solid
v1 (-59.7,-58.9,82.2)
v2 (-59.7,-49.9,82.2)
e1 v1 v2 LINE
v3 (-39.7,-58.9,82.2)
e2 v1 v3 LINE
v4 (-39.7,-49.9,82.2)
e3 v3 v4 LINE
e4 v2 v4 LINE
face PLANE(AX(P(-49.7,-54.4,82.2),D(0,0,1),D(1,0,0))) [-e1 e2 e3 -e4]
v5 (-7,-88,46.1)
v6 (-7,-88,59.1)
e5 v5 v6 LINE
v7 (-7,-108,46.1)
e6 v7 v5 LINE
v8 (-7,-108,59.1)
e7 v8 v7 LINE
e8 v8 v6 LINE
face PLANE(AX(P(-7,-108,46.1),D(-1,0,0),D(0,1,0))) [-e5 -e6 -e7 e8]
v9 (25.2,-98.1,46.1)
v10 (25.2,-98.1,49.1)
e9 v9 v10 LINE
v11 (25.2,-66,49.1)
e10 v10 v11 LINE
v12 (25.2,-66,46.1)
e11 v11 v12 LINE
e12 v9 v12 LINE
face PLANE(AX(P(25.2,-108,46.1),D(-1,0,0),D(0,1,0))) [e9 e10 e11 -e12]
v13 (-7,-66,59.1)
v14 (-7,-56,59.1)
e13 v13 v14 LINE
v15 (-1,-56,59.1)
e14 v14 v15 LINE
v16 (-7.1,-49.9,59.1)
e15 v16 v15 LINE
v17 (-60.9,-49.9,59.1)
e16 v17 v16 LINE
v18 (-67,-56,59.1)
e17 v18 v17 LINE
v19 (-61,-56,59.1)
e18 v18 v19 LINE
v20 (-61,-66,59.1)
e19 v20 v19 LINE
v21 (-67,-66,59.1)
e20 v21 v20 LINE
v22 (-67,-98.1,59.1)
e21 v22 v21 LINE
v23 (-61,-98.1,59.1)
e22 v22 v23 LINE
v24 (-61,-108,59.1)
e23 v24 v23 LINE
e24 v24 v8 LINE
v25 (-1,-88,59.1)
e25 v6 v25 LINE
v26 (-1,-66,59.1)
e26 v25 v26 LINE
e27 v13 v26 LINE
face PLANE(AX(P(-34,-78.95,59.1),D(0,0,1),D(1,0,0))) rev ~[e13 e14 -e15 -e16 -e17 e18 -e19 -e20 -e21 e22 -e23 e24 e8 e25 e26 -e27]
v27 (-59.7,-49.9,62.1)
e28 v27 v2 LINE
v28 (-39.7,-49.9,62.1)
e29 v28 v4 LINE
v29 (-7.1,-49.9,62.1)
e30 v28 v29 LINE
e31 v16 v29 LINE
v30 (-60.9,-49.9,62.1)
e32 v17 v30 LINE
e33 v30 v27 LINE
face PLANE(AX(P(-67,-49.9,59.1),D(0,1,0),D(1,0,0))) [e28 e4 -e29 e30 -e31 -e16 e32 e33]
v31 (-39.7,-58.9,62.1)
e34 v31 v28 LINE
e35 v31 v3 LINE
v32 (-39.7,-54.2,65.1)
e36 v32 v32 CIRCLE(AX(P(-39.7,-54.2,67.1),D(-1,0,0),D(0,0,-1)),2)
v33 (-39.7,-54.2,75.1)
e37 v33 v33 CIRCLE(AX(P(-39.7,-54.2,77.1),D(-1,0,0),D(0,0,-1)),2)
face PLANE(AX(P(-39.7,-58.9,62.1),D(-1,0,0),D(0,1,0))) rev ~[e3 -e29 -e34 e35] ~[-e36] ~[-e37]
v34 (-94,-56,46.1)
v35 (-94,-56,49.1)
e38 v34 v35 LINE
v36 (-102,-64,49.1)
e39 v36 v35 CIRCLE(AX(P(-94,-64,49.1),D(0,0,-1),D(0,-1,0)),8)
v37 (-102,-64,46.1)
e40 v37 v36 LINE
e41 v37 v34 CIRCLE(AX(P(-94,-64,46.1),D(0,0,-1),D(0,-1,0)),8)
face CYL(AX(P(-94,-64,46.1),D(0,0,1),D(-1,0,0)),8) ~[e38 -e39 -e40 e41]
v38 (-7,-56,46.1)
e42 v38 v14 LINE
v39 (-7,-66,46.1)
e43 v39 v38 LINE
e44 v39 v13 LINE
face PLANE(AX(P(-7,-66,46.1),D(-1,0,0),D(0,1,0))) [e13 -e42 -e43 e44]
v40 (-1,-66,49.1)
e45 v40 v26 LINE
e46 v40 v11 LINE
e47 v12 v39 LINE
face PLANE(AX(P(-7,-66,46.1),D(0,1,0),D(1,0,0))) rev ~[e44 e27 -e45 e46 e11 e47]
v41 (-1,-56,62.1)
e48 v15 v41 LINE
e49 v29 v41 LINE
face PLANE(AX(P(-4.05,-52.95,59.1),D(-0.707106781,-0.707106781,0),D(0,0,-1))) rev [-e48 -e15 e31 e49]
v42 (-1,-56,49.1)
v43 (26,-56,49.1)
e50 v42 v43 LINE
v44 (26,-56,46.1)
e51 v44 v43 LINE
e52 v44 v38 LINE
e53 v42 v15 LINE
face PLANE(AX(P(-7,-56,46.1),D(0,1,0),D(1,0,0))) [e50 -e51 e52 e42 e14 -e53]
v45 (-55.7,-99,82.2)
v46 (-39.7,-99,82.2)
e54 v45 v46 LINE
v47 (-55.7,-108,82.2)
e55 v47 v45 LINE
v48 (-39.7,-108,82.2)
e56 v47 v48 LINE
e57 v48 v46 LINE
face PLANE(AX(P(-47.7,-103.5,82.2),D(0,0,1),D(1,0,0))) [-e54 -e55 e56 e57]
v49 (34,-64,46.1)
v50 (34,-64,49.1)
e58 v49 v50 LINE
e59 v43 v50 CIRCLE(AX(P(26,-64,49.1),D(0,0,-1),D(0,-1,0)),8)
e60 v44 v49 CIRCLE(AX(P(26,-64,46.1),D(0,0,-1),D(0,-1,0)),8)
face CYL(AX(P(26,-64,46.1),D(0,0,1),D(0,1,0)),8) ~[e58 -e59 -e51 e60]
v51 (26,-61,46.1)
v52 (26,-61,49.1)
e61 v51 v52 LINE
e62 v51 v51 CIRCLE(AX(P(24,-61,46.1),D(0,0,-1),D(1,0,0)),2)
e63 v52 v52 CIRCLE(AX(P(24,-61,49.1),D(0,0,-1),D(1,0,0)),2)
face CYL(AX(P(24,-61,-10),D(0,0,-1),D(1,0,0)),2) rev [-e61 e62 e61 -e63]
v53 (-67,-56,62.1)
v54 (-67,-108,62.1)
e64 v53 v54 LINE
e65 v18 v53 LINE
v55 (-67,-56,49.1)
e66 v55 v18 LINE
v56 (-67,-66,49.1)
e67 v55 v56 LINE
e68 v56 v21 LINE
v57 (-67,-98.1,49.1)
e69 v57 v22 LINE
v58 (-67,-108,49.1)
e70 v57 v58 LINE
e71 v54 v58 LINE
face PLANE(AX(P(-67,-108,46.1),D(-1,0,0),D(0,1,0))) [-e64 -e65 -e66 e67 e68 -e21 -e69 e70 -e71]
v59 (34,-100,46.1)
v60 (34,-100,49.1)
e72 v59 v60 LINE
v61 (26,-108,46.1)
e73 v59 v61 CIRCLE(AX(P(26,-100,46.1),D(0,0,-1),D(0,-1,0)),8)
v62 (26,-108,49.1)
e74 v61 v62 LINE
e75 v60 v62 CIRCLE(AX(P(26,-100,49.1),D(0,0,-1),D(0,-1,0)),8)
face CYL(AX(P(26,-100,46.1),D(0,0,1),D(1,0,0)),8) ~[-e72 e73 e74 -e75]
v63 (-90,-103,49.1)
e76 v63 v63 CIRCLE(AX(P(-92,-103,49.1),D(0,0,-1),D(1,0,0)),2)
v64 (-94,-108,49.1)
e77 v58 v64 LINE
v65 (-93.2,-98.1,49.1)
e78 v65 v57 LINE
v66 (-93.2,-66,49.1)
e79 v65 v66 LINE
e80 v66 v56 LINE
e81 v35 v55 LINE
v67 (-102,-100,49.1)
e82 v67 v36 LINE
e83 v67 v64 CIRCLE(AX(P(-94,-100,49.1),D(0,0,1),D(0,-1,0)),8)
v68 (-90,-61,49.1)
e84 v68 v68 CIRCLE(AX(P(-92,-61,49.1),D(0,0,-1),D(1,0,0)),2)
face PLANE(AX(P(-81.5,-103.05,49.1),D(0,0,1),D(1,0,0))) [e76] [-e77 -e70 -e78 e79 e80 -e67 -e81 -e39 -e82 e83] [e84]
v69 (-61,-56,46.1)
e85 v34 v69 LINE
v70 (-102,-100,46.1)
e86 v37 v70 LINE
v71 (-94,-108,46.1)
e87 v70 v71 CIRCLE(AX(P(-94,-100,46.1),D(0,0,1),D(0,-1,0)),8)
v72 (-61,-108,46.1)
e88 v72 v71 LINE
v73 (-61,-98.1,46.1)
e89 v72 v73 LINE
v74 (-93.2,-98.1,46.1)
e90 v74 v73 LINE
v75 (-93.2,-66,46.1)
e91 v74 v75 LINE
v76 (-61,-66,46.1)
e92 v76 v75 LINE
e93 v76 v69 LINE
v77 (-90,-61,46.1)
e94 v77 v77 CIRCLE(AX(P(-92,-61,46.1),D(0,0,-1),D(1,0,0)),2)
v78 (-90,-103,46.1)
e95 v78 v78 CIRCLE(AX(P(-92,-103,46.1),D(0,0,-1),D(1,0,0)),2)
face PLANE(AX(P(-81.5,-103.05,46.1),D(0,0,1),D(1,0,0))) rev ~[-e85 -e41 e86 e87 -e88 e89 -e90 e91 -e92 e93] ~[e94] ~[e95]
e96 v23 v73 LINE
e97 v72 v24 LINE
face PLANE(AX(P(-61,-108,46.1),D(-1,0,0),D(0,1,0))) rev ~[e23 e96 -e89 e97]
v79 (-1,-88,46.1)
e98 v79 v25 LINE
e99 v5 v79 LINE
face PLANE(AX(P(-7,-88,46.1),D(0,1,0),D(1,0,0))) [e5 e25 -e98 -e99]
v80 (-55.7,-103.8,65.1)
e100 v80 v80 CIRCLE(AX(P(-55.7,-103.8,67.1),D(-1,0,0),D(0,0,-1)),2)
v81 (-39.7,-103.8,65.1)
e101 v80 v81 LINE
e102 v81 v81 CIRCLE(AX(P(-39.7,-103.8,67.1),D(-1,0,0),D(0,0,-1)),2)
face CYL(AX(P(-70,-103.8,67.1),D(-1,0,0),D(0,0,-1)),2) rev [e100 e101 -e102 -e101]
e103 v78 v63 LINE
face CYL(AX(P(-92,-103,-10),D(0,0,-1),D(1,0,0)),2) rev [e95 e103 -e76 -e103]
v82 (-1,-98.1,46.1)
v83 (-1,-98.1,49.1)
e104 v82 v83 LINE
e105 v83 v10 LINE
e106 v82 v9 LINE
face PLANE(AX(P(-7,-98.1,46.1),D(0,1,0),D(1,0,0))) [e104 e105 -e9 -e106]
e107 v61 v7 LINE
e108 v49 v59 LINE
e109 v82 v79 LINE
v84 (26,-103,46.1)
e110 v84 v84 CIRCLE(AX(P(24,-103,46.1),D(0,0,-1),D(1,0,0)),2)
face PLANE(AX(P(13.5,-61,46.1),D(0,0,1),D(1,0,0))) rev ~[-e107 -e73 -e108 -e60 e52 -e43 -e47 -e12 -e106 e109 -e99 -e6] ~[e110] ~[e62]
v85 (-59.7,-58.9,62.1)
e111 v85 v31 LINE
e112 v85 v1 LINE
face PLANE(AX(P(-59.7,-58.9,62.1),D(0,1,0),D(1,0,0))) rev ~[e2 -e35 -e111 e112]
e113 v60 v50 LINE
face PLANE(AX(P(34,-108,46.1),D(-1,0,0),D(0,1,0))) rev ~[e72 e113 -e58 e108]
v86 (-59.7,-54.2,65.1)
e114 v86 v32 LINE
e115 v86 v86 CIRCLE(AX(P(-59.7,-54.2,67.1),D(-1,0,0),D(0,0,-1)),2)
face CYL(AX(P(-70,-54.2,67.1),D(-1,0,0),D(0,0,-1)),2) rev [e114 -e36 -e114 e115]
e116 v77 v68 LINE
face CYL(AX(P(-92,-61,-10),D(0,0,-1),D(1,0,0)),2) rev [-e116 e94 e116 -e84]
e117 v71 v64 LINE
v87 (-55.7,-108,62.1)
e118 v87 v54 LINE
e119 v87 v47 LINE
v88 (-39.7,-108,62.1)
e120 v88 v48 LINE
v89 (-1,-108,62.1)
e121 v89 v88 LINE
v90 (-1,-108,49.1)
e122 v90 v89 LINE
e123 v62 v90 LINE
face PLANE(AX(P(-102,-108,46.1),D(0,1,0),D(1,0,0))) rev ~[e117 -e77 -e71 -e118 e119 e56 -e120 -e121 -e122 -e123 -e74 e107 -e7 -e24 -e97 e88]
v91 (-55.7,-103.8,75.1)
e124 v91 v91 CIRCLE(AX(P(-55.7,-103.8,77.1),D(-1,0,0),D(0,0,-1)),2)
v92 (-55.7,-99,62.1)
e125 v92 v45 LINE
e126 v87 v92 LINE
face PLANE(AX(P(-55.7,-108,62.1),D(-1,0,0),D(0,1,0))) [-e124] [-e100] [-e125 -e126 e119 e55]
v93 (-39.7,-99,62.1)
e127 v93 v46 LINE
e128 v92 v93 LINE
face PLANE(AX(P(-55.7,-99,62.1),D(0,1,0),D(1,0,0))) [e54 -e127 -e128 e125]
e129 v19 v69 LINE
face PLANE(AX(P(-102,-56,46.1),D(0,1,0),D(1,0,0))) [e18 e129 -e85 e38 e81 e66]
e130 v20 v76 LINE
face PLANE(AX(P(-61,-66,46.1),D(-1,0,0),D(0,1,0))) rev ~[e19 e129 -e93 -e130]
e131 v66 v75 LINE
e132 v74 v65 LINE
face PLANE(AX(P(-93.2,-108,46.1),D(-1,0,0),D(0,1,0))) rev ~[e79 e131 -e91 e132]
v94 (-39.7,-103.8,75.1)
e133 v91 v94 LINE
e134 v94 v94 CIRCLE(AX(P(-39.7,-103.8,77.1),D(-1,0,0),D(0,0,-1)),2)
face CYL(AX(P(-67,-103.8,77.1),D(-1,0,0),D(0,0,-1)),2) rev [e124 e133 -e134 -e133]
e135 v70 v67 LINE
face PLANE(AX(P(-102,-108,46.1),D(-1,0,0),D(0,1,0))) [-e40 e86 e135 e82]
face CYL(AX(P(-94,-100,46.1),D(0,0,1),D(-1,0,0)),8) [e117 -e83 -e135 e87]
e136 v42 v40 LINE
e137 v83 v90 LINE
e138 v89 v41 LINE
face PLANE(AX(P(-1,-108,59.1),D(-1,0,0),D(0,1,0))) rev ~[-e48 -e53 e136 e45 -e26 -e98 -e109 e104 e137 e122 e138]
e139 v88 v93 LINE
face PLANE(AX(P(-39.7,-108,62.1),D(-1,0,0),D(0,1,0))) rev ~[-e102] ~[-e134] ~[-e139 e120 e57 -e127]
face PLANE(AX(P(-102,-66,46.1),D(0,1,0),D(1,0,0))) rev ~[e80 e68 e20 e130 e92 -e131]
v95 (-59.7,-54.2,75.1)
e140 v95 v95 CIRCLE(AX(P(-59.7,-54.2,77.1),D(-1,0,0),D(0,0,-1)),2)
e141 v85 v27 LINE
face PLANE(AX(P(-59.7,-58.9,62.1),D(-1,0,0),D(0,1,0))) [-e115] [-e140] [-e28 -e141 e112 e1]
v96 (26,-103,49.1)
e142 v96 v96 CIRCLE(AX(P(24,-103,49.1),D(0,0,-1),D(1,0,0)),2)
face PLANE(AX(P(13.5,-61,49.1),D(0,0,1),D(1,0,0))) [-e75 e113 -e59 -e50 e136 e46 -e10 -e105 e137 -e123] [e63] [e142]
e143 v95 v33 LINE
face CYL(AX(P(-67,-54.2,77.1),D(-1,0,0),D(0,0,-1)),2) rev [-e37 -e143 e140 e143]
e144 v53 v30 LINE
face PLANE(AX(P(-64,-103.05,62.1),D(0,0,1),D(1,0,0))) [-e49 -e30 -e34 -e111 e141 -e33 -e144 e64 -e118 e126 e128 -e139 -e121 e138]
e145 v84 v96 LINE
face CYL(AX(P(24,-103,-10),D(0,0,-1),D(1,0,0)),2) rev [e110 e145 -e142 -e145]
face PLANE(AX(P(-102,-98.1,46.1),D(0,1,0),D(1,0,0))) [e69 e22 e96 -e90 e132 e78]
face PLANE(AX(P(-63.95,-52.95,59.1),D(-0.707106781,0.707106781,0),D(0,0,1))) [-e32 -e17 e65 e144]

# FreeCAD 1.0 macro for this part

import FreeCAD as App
import Part
import Sketcher
from FreeCAD import Vector
Q = App.Units.Quantity


def edges_at(feature, points):
    """Names of the edges that pass closest to the given points."""
    edges = feature.Shape.Edges
    near = lambda p: min(range(len(edges)), key=lambda i: edges[i].distToShape(Part.Vertex(*p))[0])
    return sorted({f"Edge{near(p) + 1}" for p in points})


def add_polygon(sketch, points):
    """Adds a closed chain of lines whose ends are joined by coincident constraints."""
    first, n = sketch.GeometryCount, len(points)
    for a, b in zip(points, points[1:] + points[:1]):
        sketch.addGeometry(Part.LineSegment(App.Vector(*a, 0), App.Vector(*b, 0)), False)
    for i in range(n):
        sketch.addConstraint(Sketcher.Constraint("Coincident", first + i, 2, first + (i + 1) % n, 1))

doc = App.newDocument("Part")
body = doc.addObject("PartDesign::Body", "Body")

# Sketch on XY plane
sketch1 = doc.addObject("Sketcher::SketchObject", "Sketch")
body.addObject(sketch1)
sketch1.AttachmentSupport = (doc.XY_Plane, [""])
sketch1.MapMode = "FlatFace"
sketch1.AttachmentOffset = App.Placement(Vector(0, 0, -10), App.Rotation())
sketch1.addGeometry(Part.Circle(Vector(-90, -103, 0), Vector(0, 0, 1), 2), False)
sketch1.addConstraint(Sketcher.Constraint("Diameter", 0, Q("4 mm")))
sketch1.addConstraint(Sketcher.Constraint("DistanceX", 0, 3, -1, 1, Q("90 mm")))
sketch1.addConstraint(Sketcher.Constraint("DistanceY", 0, 3, -1, 1, Q("103 mm")))
pad1 = doc.addObject("PartDesign::Pad", "Pad")
body.addObject(pad1)
pad1.Profile = sketch1
pad1.Length = 70
body2 = doc.addObject("PartDesign::Body", "Body001")
body2.AllowCompound = True

# Sketch on XY plane
sketch2 = doc.addObject("Sketcher::SketchObject", "Sketch001")
body2.addObject(sketch2)
sketch2.AttachmentSupport = (doc.getObject("XY_Plane001"), [""])
sketch2.MapMode = "FlatFace"
sketch2.AttachmentOffset = App.Placement(Vector(0, 0, -10), App.Rotation())
sketch2.addGeometry(Part.Circle(Vector(-90, -61, 0), Vector(0, 0, 1), 2), False)
sketch2.addConstraint(Sketcher.Constraint("Diameter", 0, Q("4 mm")))
sketch2.addConstraint(Sketcher.Constraint("DistanceX", 0, 3, -1, 1, Q("90 mm")))
sketch2.addConstraint(Sketcher.Constraint("DistanceY", 0, 3, -1, 1, Q("61 mm")))
pad2 = doc.addObject("PartDesign::Pad", "Pad001")
body2.addObject(pad2)
pad2.Profile = sketch2
pad2.Length = 70
doc.recompute()

boolean = doc.addObject("PartDesign::Boolean", "Boolean")
body2.addObject(boolean)
boolean.Type = "Fuse"
boolean.addObjects([body])
body3 = doc.addObject("PartDesign::Body", "Body002")
body3.AllowCompound = True
doc.recompute()

body2.Placement = App.Placement(Vector(114, 0, 0), App.Rotation(Vector(0, 0, 1), 0))
boolean2 = doc.addObject("PartDesign::Boolean", "Boolean001")
body3.addObject(boolean2)
boolean2.Type = "Fuse"
boolean2.addObjects([body2])
body4 = doc.addObject("PartDesign::Body", "Body003")

# Sketch on XY plane
sketch3 = doc.addObject("Sketcher::SketchObject", "Sketch002")
body4.addObject(sketch3)
sketch3.AttachmentSupport = (doc.getObject("XY_Plane003"), [""])
sketch3.MapMode = "FlatFace"
sketch3.AttachmentOffset = App.Placement(Vector(0, 0, 46.1), App.Rotation())
add_polygon(sketch3, [(25, -56), (25, -108), (34, -108), (34, -56)])  # lines 0-3
sketch3.addConstraint(Sketcher.Constraint("Vertical", 0))
sketch3.addConstraint(Sketcher.Constraint("Horizontal", 1))
sketch3.addConstraint(Sketcher.Constraint("Vertical", 2))
sketch3.addConstraint(Sketcher.Constraint("Horizontal", 3))
sketch3.addConstraint(Sketcher.Constraint("DistanceY", 0, 2, 0, 1, Q("52 mm")))
sketch3.addConstraint(Sketcher.Constraint("DistanceX", 1, 1, 1, 2, Q("8.8 mm")))
sketch3.addConstraint(Sketcher.Constraint("DistanceY", 0, 2, -1, 1, Q("108 mm")))
sketch3.addConstraint(Sketcher.Constraint("DistanceX", -1, 1, 1, 2, Q("34 mm")))
pad3 = doc.addObject("PartDesign::Pad", "Pad002")
body4.addObject(pad3)
pad3.Profile = sketch3
pad3.Length = 3
body5 = doc.addObject("PartDesign::Body", "Body004")

# Sketch on XY plane
sketch4 = doc.addObject("Sketcher::SketchObject", "Sketch003")
body5.addObject(sketch4)
sketch4.AttachmentSupport = (doc.getObject("XY_Plane004"), [""])
sketch4.MapMode = "FlatFace"
sketch4.AttachmentOffset = App.Placement(Vector(0, 0, 46.1), App.Rotation())
add_polygon(sketch4, [(-7, -56), (-7, -66), (34, -66), (34, -56)])  # lines 0-3
sketch4.addConstraint(Sketcher.Constraint("Vertical", 0))
sketch4.addConstraint(Sketcher.Constraint("Horizontal", 1))
sketch4.addConstraint(Sketcher.Constraint("Vertical", 2))
sketch4.addConstraint(Sketcher.Constraint("Horizontal", 3))
sketch4.addConstraint(Sketcher.Constraint("DistanceX", 1, 1, 1, 2, Q("41 mm")))
sketch4.addConstraint(Sketcher.Constraint("DistanceY", 0, 2, 0, 1, Q("10 mm")))
sketch4.addConstraint(Sketcher.Constraint("DistanceX", 0, 2, -1, 1, Q("7 mm")))
sketch4.addConstraint(Sketcher.Constraint("DistanceY", 0, 2, -1, 1, Q("66 mm")))
pad4 = doc.addObject("PartDesign::Pad", "Pad003")
body5.addObject(pad4)
pad4.Profile = sketch4
pad4.Length = 3
body6 = doc.addObject("PartDesign::Body", "Body005")

# Sketch on XY plane
sketch5 = doc.addObject("Sketcher::SketchObject", "Sketch004")
body6.addObject(sketch5)
sketch5.AttachmentSupport = (doc.getObject("XY_Plane005"), [""])
sketch5.MapMode = "FlatFace"
sketch5.AttachmentOffset = App.Placement(Vector(0, 0, 46.1), App.Rotation())
add_polygon(sketch5, [(-7, -98), (-7, -108), (34, -108), (34, -98)])  # lines 0-3
sketch5.addConstraint(Sketcher.Constraint("Vertical", 0))
sketch5.addConstraint(Sketcher.Constraint("Horizontal", 1))
sketch5.addConstraint(Sketcher.Constraint("Vertical", 2))
sketch5.addConstraint(Sketcher.Constraint("Horizontal", 3))
sketch5.addConstraint(Sketcher.Constraint("DistanceX", 1, 1, 1, 2, Q("41 mm")))
sketch5.addConstraint(Sketcher.Constraint("DistanceY", 0, 2, 0, 1, Q("9.9 mm")))
sketch5.addConstraint(Sketcher.Constraint("DistanceX", 0, 2, -1, 1, Q("7 mm")))
sketch5.addConstraint(Sketcher.Constraint("DistanceY", 0, 2, -1, 1, Q("108 mm")))
pad5 = doc.addObject("PartDesign::Pad", "Pad004")
body6.addObject(pad5)
pad5.Profile = sketch5
pad5.Length = 3
doc.recompute()

boolean3 = doc.addObject("PartDesign::Boolean", "Boolean002")
body6.addObject(boolean3)
boolean3.Type = "Fuse"
boolean3.addObjects([body4])
doc.recompute()

boolean4 = doc.addObject("PartDesign::Boolean", "Boolean003")
body6.addObject(boolean4)
boolean4.Type = "Fuse"
boolean4.addObjects([body5])
doc.recompute()

boolean5 = doc.addObject("PartDesign::Boolean", "Boolean004")
body6.addObject(boolean5)
boolean5.Type = "Cut"
boolean5.addObjects([body3])
doc.recompute()

fillet = doc.addObject("PartDesign::Fillet", "Fillet")
body6.addObject(fillet)
fillet.Base = (boolean5, edges_at(boolean5, [(34, -108, 47.6), (34, -56, 47.6)]))
fillet.Radius = 8
body7 = doc.addObject("PartDesign::Body", "Body006")

# Sketch on XY plane
sketch6 = doc.addObject("Sketcher::SketchObject", "Sketch005")
body7.addObject(sketch6)
sketch6.AttachmentSupport = (doc.getObject("XY_Plane006"), [""])
sketch6.MapMode = "FlatFace"
sketch6.AttachmentOffset = App.Placement(Vector(0, 0, 46.1), App.Rotation())
add_polygon(sketch6, [(-7, -56), (-7, -66), (-1, -66), (-1, -56)])  # lines 0-3
sketch6.addConstraint(Sketcher.Constraint("Vertical", 0))
sketch6.addConstraint(Sketcher.Constraint("Horizontal", 1))
sketch6.addConstraint(Sketcher.Constraint("Vertical", 2))
sketch6.addConstraint(Sketcher.Constraint("Horizontal", 3))
sketch6.addConstraint(Sketcher.Constraint("DistanceX", 1, 1, 1, 2, Q("6 mm")))
sketch6.addConstraint(Sketcher.Constraint("DistanceY", 0, 2, 0, 1, Q("10 mm")))
sketch6.addConstraint(Sketcher.Constraint("DistanceX", 0, 2, -1, 1, Q("7 mm")))
sketch6.addConstraint(Sketcher.Constraint("DistanceY", 0, 2, -1, 1, Q("66 mm")))
pad6 = doc.addObject("PartDesign::Pad", "Pad005")
body7.addObject(pad6)
pad6.Profile = sketch6
pad6.Length = 16
body8 = doc.addObject("PartDesign::Body", "Body007")

# Sketch on XY plane
sketch7 = doc.addObject("Sketcher::SketchObject", "Sketch006")
body8.addObject(sketch7)
sketch7.AttachmentSupport = (doc.getObject("XY_Plane007"), [""])
sketch7.MapMode = "FlatFace"
sketch7.AttachmentOffset = App.Placement(Vector(0, 0, 46.1), App.Rotation())
add_polygon(sketch7, [(-67, -98), (-67, -108), (-61, -108), (-61, -98)])  # lines 0-3
sketch7.addConstraint(Sketcher.Constraint("Vertical", 0))
sketch7.addConstraint(Sketcher.Constraint("Horizontal", 1))
sketch7.addConstraint(Sketcher.Constraint("Vertical", 2))
sketch7.addConstraint(Sketcher.Constraint("Horizontal", 3))
sketch7.addConstraint(Sketcher.Constraint("DistanceX", 1, 1, 1, 2, Q("6 mm")))
sketch7.addConstraint(Sketcher.Constraint("DistanceY", 0, 2, 0, 1, Q("9.9 mm")))
sketch7.addConstraint(Sketcher.Constraint("DistanceX", 0, 2, -1, 1, Q("67 mm")))
sketch7.addConstraint(Sketcher.Constraint("DistanceY", 0, 2, -1, 1, Q("108 mm")))
pad7 = doc.addObject("PartDesign::Pad", "Pad006")
body8.addObject(pad7)
pad7.Profile = sketch7
pad7.Length = 16
body9 = doc.addObject("PartDesign::Body", "Body008")

# Sketch on XY plane
sketch8 = doc.addObject("Sketcher::SketchObject", "Sketch007")
body9.addObject(sketch8)
sketch8.AttachmentSupport = (doc.getObject("XY_Plane008"), [""])
sketch8.MapMode = "FlatFace"
sketch8.AttachmentOffset = App.Placement(Vector(0, 0, 46.1), App.Rotation())
add_polygon(sketch8, [(-67, -56), (-67, -66), (-61, -66), (-61, -56)])  # lines 0-3
sketch8.addConstraint(Sketcher.Constraint("Vertical", 0))
sketch8.addConstraint(Sketcher.Constraint("Horizontal", 1))
sketch8.addConstraint(Sketcher.Constraint("Vertical", 2))
sketch8.addConstraint(Sketcher.Constraint("Horizontal", 3))
sketch8.addConstraint(Sketcher.Constraint("DistanceX", 1, 1, 1, 2, Q("6 mm")))
sketch8.addConstraint(Sketcher.Constraint("DistanceY", 0, 2, 0, 1, Q("10 mm")))
sketch8.addConstraint(Sketcher.Constraint("DistanceX", 0, 2, -1, 1, Q("67 mm")))
sketch8.addConstraint(Sketcher.Constraint("DistanceY", 0, 2, -1, 1, Q("66 mm")))
pad8 = doc.addObject("PartDesign::Pad", "Pad007")
body9.addObject(pad8)
pad8.Profile = sketch8
pad8.Length = 16
body10 = doc.addObject("PartDesign::Body", "Body009")
body10.AllowCompound = True

# Sketch on XY plane
sketch9 = doc.addObject("Sketcher::SketchObject", "Sketch008")
body10.addObject(sketch9)
sketch9.AttachmentSupport = (doc.getObject("XY_Plane009"), [""])
sketch9.MapMode = "FlatFace"
sketch9.AttachmentOffset = App.Placement(Vector(0, 0, 46.1), App.Rotation())
add_polygon(sketch9, [(-7, -88), (-7, -108), (-1, -108), (-1, -88)])  # lines 0-3
sketch9.addConstraint(Sketcher.Constraint("Vertical", 0))
sketch9.addConstraint(Sketcher.Constraint("Horizontal", 1))
sketch9.addConstraint(Sketcher.Constraint("Vertical", 2))
sketch9.addConstraint(Sketcher.Constraint("Horizontal", 3))
sketch9.addConstraint(Sketcher.Constraint("DistanceX", 1, 1, 1, 2, Q("6 mm")))
sketch9.addConstraint(Sketcher.Constraint("DistanceY", 0, 2, 0, 1, Q("20 mm")))
sketch9.addConstraint(Sketcher.Constraint("DistanceX", 0, 2, -1, 1, Q("7 mm")))
sketch9.addConstraint(Sketcher.Constraint("DistanceY", 0, 2, -1, 1, Q("108 mm")))
pad9 = doc.addObject("PartDesign::Pad", "Pad008")
body10.addObject(pad9)
pad9.Profile = sketch9
pad9.Length = 16
doc.recompute()

boolean6 = doc.addObject("PartDesign::Boolean", "Boolean005")
body10.addObject(boolean6)
boolean6.Type = "Fuse"
boolean6.addObjects([body7])
doc.recompute()

boolean7 = doc.addObject("PartDesign::Boolean", "Boolean006")
body10.addObject(boolean7)
boolean7.Type = "Fuse"
boolean7.addObjects([body8])
doc.recompute()

boolean8 = doc.addObject("PartDesign::Boolean", "Boolean007")
body10.addObject(boolean8)
boolean8.Type = "Fuse"
boolean8.addObjects([body9])
body11 = doc.addObject("PartDesign::Body", "Body010")

# Sketch on YZ plane
sketch10 = doc.addObject("Sketcher::SketchObject", "Sketch009")
body11.addObject(sketch10)
sketch10.AttachmentSupport = (doc.getObject("YZ_Plane010"), [""])
sketch10.MapMode = "FlatFace"
sketch10.AttachmentOffset = App.Placement(Vector(0, 0, -74.6), App.Rotation())
sketch10.addGeometry(Part.Circle(Vector(-105.8, 63, 0), Vector(0, 0, 1), 2), False)
sketch10.addConstraint(Sketcher.Constraint("Diameter", 0, Q("4 mm")))
sketch10.addConstraint(Sketcher.Constraint("DistanceY", -1, 1, 0, 3, Q("63 mm")))
sketch10.addConstraint(Sketcher.Constraint("DistanceX", 0, 3, -1, 1, Q("105.8 mm")))
pad10 = doc.addObject("PartDesign::Pad", "Pad009")
body11.addObject(pad10)
pad10.Profile = sketch10
pad10.Length = 33
body12 = doc.addObject("PartDesign::Body", "Body011")
body12.AllowCompound = True

# Sketch on YZ plane
sketch11 = doc.addObject("Sketcher::SketchObject", "Sketch010")
body12.addObject(sketch11)
sketch11.AttachmentSupport = (doc.getObject("YZ_Plane011"), [""])
sketch11.MapMode = "FlatFace"
sketch11.AttachmentOffset = App.Placement(Vector(0, 0, -71.6), App.Rotation())
sketch11.addGeometry(Part.Circle(Vector(-105.8, 73, 0), Vector(0, 0, 1), 2), False)
sketch11.addConstraint(Sketcher.Constraint("Diameter", 0, Q("4 mm")))
sketch11.addConstraint(Sketcher.Constraint("DistanceY", -1, 1, 0, 3, Q("73 mm")))
sketch11.addConstraint(Sketcher.Constraint("DistanceX", 0, 3, -1, 1, Q("105.8 mm")))
pad11 = doc.addObject("PartDesign::Pad", "Pad010")
body12.addObject(pad11)
pad11.Profile = sketch11
pad11.Length = 30
doc.recompute()

boolean9 = doc.addObject("PartDesign::Boolean", "Boolean008")
body12.addObject(boolean9)
boolean9.Type = "Fuse"
boolean9.addObjects([body11])
body13 = doc.addObject("PartDesign::Body", "Body012")
body13.AllowCompound = True
doc.recompute()

body12.Placement = App.Placement(Vector(0, 2, 4), App.Rotation(Vector(0, 0, 1), 0))
boolean10 = doc.addObject("PartDesign::Boolean", "Boolean009")
body13.addObject(boolean10)
boolean10.Type = "Fuse"
boolean10.addObjects([body12])
body14 = doc.addObject("PartDesign::Body", "Body013")

# Sketch on YZ plane
sketch12 = doc.addObject("Sketcher::SketchObject", "Sketch011")
body14.addObject(sketch12)
sketch12.AttachmentSupport = (doc.getObject("YZ_Plane013"), [""])
sketch12.MapMode = "FlatFace"
sketch12.AttachmentOffset = App.Placement(Vector(0, 0, -74.6), App.Rotation())
sketch12.addGeometry(Part.Circle(Vector(-56.2, 63, 0), Vector(0, 0, 1), 2), False)
sketch12.addConstraint(Sketcher.Constraint("Diameter", 0, Q("4 mm")))
sketch12.addConstraint(Sketcher.Constraint("DistanceY", -1, 1, 0, 3, Q("63 mm")))
sketch12.addConstraint(Sketcher.Constraint("DistanceX", 0, 3, -1, 1, Q("56.2 mm")))
pad12 = doc.addObject("PartDesign::Pad", "Pad011")
body14.addObject(pad12)
pad12.Profile = sketch12
pad12.Length = 33
body15 = doc.addObject("PartDesign::Body", "Body014")
body15.AllowCompound = True

# Sketch on YZ plane
sketch13 = doc.addObject("Sketcher::SketchObject", "Sketch012")
body15.addObject(sketch13)
sketch13.AttachmentSupport = (doc.getObject("YZ_Plane014"), [""])
sketch13.MapMode = "FlatFace"
sketch13.AttachmentOffset = App.Placement(Vector(0, 0, -71.6), App.Rotation())
sketch13.addGeometry(Part.Circle(Vector(-56.2, 73, 0), Vector(0, 0, 1), 2), False)
sketch13.addConstraint(Sketcher.Constraint("Diameter", 0, Q("4 mm")))
sketch13.addConstraint(Sketcher.Constraint("DistanceY", -1, 1, 0, 3, Q("73 mm")))
sketch13.addConstraint(Sketcher.Constraint("DistanceX", 0, 3, -1, 1, Q("56.2 mm")))
pad13 = doc.addObject("PartDesign::Pad", "Pad012")
body15.addObject(pad13)
pad13.Profile = sketch13
pad13.Length = 30
doc.recompute()

boolean11 = doc.addObject("PartDesign::Boolean", "Boolean010")
body15.addObject(boolean11)
boolean11.Type = "Fuse"
boolean11.addObjects([body14])
body16 = doc.addObject("PartDesign::Body", "Body015")
body16.AllowCompound = True
doc.recompute()

body15.Placement = App.Placement(Vector(0, 2, 4), App.Rotation(Vector(0, 0, 1), 0))
boolean12 = doc.addObject("PartDesign::Boolean", "Boolean011")
body16.addObject(boolean12)
boolean12.Type = "Fuse"
boolean12.addObjects([body15])
doc.recompute()

boolean13 = doc.addObject("PartDesign::Boolean", "Boolean012")
body16.addObject(boolean13)
boolean13.Type = "Fuse"
boolean13.addObjects([body13])
body17 = doc.addObject("PartDesign::Body", "Body016")

# Sketch on XY plane
sketch14 = doc.addObject("Sketcher::SketchObject", "Sketch013")
body17.addObject(sketch14)
sketch14.AttachmentSupport = (doc.getObject("XY_Plane016"), [""])
sketch14.MapMode = "FlatFace"
sketch14.AttachmentOffset = App.Placement(Vector(0, 0, 62), App.Rotation())
add_polygon(sketch14, [(-64, -50), (-64, -59), (-44, -59), (-44, -50)])  # lines 0-3
sketch14.addConstraint(Sketcher.Constraint("Vertical", 0))
sketch14.addConstraint(Sketcher.Constraint("Horizontal", 1))
sketch14.addConstraint(Sketcher.Constraint("Vertical", 2))
sketch14.addConstraint(Sketcher.Constraint("Horizontal", 3))
sketch14.addConstraint(Sketcher.Constraint("DistanceX", 1, 1, 1, 2, Q("20 mm")))
sketch14.addConstraint(Sketcher.Constraint("DistanceY", 0, 2, 0, 1, Q("9 mm")))
sketch14.addConstraint(Sketcher.Constraint("DistanceX", 0, 2, -1, 1, Q("64.3 mm")))
sketch14.addConstraint(Sketcher.Constraint("DistanceY", 0, 2, -1, 1, Q("58.9 mm")))
pad14 = doc.addObject("PartDesign::Pad", "Pad013")
body17.addObject(pad14)
pad14.Profile = sketch14
pad14.Length = 20.1
body18 = doc.addObject("PartDesign::Body", "Body017")

# Sketch on XY plane
sketch15 = doc.addObject("Sketcher::SketchObject", "Sketch014")
body18.addObject(sketch15)
sketch15.AttachmentSupport = (doc.getObject("XY_Plane017"), [""])
sketch15.MapMode = "FlatFace"
sketch15.AttachmentOffset = App.Placement(Vector(0, 0, 62), App.Rotation())
add_polygon(sketch15, [(-60, -99), (-60, -108), (-44, -108), (-44, -99)])  # lines 0-3
sketch15.addConstraint(Sketcher.Constraint("Vertical", 0))
sketch15.addConstraint(Sketcher.Constraint("Horizontal", 1))
sketch15.addConstraint(Sketcher.Constraint("Vertical", 2))
sketch15.addConstraint(Sketcher.Constraint("Horizontal", 3))
sketch15.addConstraint(Sketcher.Constraint("DistanceX", 1, 1, 1, 2, Q("16 mm")))
sketch15.addConstraint(Sketcher.Constraint("DistanceY", 0, 2, 0, 1, Q("9 mm")))
sketch15.addConstraint(Sketcher.Constraint("DistanceY", 0, 2, -1, 1, Q("108 mm")))
sketch15.addConstraint(Sketcher.Constraint("DistanceX", 0, 2, -1, 1, Q("60.3 mm")))
pad15 = doc.addObject("PartDesign::Pad", "Pad014")
body18.addObject(pad15)
pad15.Profile = sketch15
pad15.Length = 20.1
body19 = doc.addObject("PartDesign::Body", "Body018")

# Sketch on XY plane
sketch16 = doc.addObject("Sketcher::SketchObject", "Sketch015")
body19.addObject(sketch16)
sketch16.AttachmentSupport = (doc.getObject("XY_Plane018"), [""])
sketch16.MapMode = "FlatFace"
sketch16.AttachmentOffset = App.Placement(Vector(0, 0, 59), App.Rotation())
add_polygon(sketch16, [(-72, -50), (-72, -108), (-6, -108), (-6, -50)])  # lines 0-3
sketch16.addConstraint(Sketcher.Constraint("Vertical", 0))
sketch16.addConstraint(Sketcher.Constraint("Horizontal", 1))
sketch16.addConstraint(Sketcher.Constraint("Vertical", 2))
sketch16.addConstraint(Sketcher.Constraint("Horizontal", 3))
sketch16.addConstraint(Sketcher.Constraint("DistanceX", 1, 1, 1, 2, Q("66 mm")))
sketch16.addConstraint(Sketcher.Constraint("DistanceY", 0, 2, 0, 1, Q("58.1 mm")))
sketch16.addConstraint(Sketcher.Constraint("DistanceY", 0, 2, -1, 1, Q("108 mm")))
sketch16.addConstraint(Sketcher.Constraint("DistanceX", 0, 2, -1, 1, Q("71.6 mm")))
pad16 = doc.addObject("PartDesign::Pad", "Pad015")
body19.addObject(pad16)
pad16.Profile = sketch16
pad16.Length = 3
doc.recompute()

boolean14 = doc.addObject("PartDesign::Boolean", "Boolean013")
body19.addObject(boolean14)
boolean14.Type = "Fuse"
boolean14.addObjects([body17])
doc.recompute()

boolean15 = doc.addObject("PartDesign::Boolean", "Boolean014")
body19.addObject(boolean15)
boolean15.Type = "Fuse"
boolean15.addObjects([body18])
doc.recompute()

boolean16 = doc.addObject("PartDesign::Boolean", "Boolean015")
body19.addObject(boolean16)
boolean16.Type = "Cut"
boolean16.addObjects([body16])
body20 = doc.addObject("PartDesign::Body", "Body019")
doc.recompute()

body19.Placement = App.Placement(Vector(4.7, 0, 0.1), App.Rotation(Vector(0, 0, 1), 0))
boolean17 = doc.addObject("PartDesign::Boolean", "Boolean016")
body20.addObject(boolean17)
boolean17.Type = "Fuse"
boolean17.addObjects([body19])
doc.recompute()

chamfer = doc.addObject("PartDesign::Chamfer", "Chamfer")
body20.addObject(chamfer)
chamfer.Base = (boolean17, edges_at(boolean17, [(-66.9, -49.9, 60.6), (-0.9, -49.9, 60.6)]))
chamfer.Size = 6.1
body21 = doc.addObject("PartDesign::Body", "Body020")
doc.recompute()

body20.Placement = App.Placement(Vector(-0.1, 0, 0), App.Rotation(Vector(0, 0, 1), 0))
boolean18 = doc.addObject("PartDesign::Boolean", "Boolean017")
body21.addObject(boolean18)
boolean18.Type = "Fuse"
boolean18.addObjects([body20])
body22 = doc.addObject("PartDesign::Body", "Body021")

# Sketch on XY plane
sketch17 = doc.addObject("Sketcher::SketchObject", "Sketch016")
body22.addObject(sketch17)
sketch17.AttachmentSupport = (doc.getObject("XY_Plane021"), [""])
sketch17.MapMode = "FlatFace"
sketch17.AttachmentOffset = App.Placement(Vector(0, 0, -10), App.Rotation())
sketch17.addGeometry(Part.Circle(Vector(-90, -103, 0), Vector(0, 0, 1), 2), False)
sketch17.addConstraint(Sketcher.Constraint("Diameter", 0, Q("4 mm")))
sketch17.addConstraint(Sketcher.Constraint("DistanceX", 0, 3, -1, 1, Q("90 mm")))
sketch17.addConstraint(Sketcher.Constraint("DistanceY", 0, 3, -1, 1, Q("103 mm")))
pad17 = doc.addObject("PartDesign::Pad", "Pad016")
body22.addObject(pad17)
pad17.Profile = sketch17
pad17.Length = 65
body23 = doc.addObject("PartDesign::Body", "Body022")
body23.AllowCompound = True

# Sketch on XY plane
sketch18 = doc.addObject("Sketcher::SketchObject", "Sketch017")
body23.addObject(sketch18)
sketch18.AttachmentSupport = (doc.getObject("XY_Plane022"), [""])
sketch18.MapMode = "FlatFace"
sketch18.AttachmentOffset = App.Placement(Vector(0, 0, -10), App.Rotation())
sketch18.addGeometry(Part.Circle(Vector(-90, -61, 0), Vector(0, 0, 1), 2), False)
sketch18.addConstraint(Sketcher.Constraint("Diameter", 0, Q("4 mm")))
sketch18.addConstraint(Sketcher.Constraint("DistanceX", 0, 3, -1, 1, Q("90 mm")))
sketch18.addConstraint(Sketcher.Constraint("DistanceY", 0, 3, -1, 1, Q("61 mm")))
pad18 = doc.addObject("PartDesign::Pad", "Pad017")
body23.addObject(pad18)
pad18.Profile = sketch18
pad18.Length = 65
doc.recompute()

boolean19 = doc.addObject("PartDesign::Boolean", "Boolean018")
body23.addObject(boolean19)
boolean19.Type = "Fuse"
boolean19.addObjects([body22])
body24 = doc.addObject("PartDesign::Body", "Body023")
body24.AllowCompound = True
doc.recompute()

body23.Placement = App.Placement(Vector(-2, 0, 0), App.Rotation(Vector(0, 0, 1), 0))
boolean20 = doc.addObject("PartDesign::Boolean", "Boolean019")
body24.addObject(boolean20)
boolean20.Type = "Fuse"
boolean20.addObjects([body23])
body25 = doc.addObject("PartDesign::Body", "Body024")

# Sketch on XY plane
sketch19 = doc.addObject("Sketcher::SketchObject", "Sketch018")
body25.addObject(sketch19)
sketch19.AttachmentSupport = (doc.getObject("XY_Plane024"), [""])
sketch19.MapMode = "FlatFace"
sketch19.AttachmentOffset = App.Placement(Vector(0, 0, 46.1), App.Rotation())
add_polygon(sketch19, [(-102, -56), (-102, -108), (-93, -108), (-93, -56)])  # lines 0-3
sketch19.addConstraint(Sketcher.Constraint("Vertical", 0))
sketch19.addConstraint(Sketcher.Constraint("Horizontal", 1))
sketch19.addConstraint(Sketcher.Constraint("Vertical", 2))
sketch19.addConstraint(Sketcher.Constraint("Horizontal", 3))
sketch19.addConstraint(Sketcher.Constraint("DistanceY", 0, 2, 0, 1, Q("52 mm")))
sketch19.addConstraint(Sketcher.Constraint("DistanceX", 1, 1, 1, 2, Q("8.8 mm")))
sketch19.addConstraint(Sketcher.Constraint("DistanceX", 0, 2, -1, 1, Q("102 mm")))
sketch19.addConstraint(Sketcher.Constraint("DistanceY", 0, 2, -1, 1, Q("108 mm")))
pad19 = doc.addObject("PartDesign::Pad", "Pad018")
body25.addObject(pad19)
pad19.Profile = sketch19
pad19.Length = 3
body26 = doc.addObject("PartDesign::Body", "Body025")

# Sketch on XY plane
sketch20 = doc.addObject("Sketcher::SketchObject", "Sketch019")
body26.addObject(sketch20)
sketch20.AttachmentSupport = (doc.getObject("XY_Plane025"), [""])
sketch20.MapMode = "FlatFace"
sketch20.AttachmentOffset = App.Placement(Vector(0, 0, 46.1), App.Rotation())
add_polygon(sketch20, [(-102, -56), (-102, -66), (-61, -66), (-61, -56)])  # lines 0-3
sketch20.addConstraint(Sketcher.Constraint("Vertical", 0))
sketch20.addConstraint(Sketcher.Constraint("Horizontal", 1))
sketch20.addConstraint(Sketcher.Constraint("Vertical", 2))
sketch20.addConstraint(Sketcher.Constraint("Horizontal", 3))
sketch20.addConstraint(Sketcher.Constraint("DistanceX", 1, 1, 1, 2, Q("41 mm")))
sketch20.addConstraint(Sketcher.Constraint("DistanceY", 0, 2, 0, 1, Q("10 mm")))
sketch20.addConstraint(Sketcher.Constraint("DistanceX", 0, 2, -1, 1, Q("102 mm")))
sketch20.addConstraint(Sketcher.Constraint("DistanceY", 0, 2, -1, 1, Q("66 mm")))
pad20 = doc.addObject("PartDesign::Pad", "Pad019")
body26.addObject(pad20)
pad20.Profile = sketch20
pad20.Length = 3
body27 = doc.addObject("PartDesign::Body", "Body026")
body27.AllowCompound = True

# Sketch on XY plane
sketch21 = doc.addObject("Sketcher::SketchObject", "Sketch020")
body27.addObject(sketch21)
sketch21.AttachmentSupport = (doc.getObject("XY_Plane026"), [""])
sketch21.MapMode = "FlatFace"
sketch21.AttachmentOffset = App.Placement(Vector(0, 0, 46.1), App.Rotation())
add_polygon(sketch21, [(-102, -98), (-102, -108), (-61, -108), (-61, -98)])  # lines 0-3
sketch21.addConstraint(Sketcher.Constraint("Vertical", 0))
sketch21.addConstraint(Sketcher.Constraint("Horizontal", 1))
sketch21.addConstraint(Sketcher.Constraint("Vertical", 2))
sketch21.addConstraint(Sketcher.Constraint("Horizontal", 3))
sketch21.addConstraint(Sketcher.Constraint("DistanceX", 1, 1, 1, 2, Q("41 mm")))
sketch21.addConstraint(Sketcher.Constraint("DistanceY", 0, 2, 0, 1, Q("9.9 mm")))
sketch21.addConstraint(Sketcher.Constraint("DistanceX", 0, 2, -1, 1, Q("102 mm")))
sketch21.addConstraint(Sketcher.Constraint("DistanceY", 0, 2, -1, 1, Q("108 mm")))
pad21 = doc.addObject("PartDesign::Pad", "Pad020")
body27.addObject(pad21)
pad21.Profile = sketch21
pad21.Length = 3
doc.recompute()

boolean21 = doc.addObject("PartDesign::Boolean", "Boolean020")
body27.addObject(boolean21)
boolean21.Type = "Fuse"
boolean21.addObjects([body25])
doc.recompute()

boolean22 = doc.addObject("PartDesign::Boolean", "Boolean021")
body27.addObject(boolean22)
boolean22.Type = "Fuse"
boolean22.addObjects([body26])
doc.recompute()

boolean23 = doc.addObject("PartDesign::Boolean", "Boolean022")
body27.addObject(boolean23)
boolean23.Type = "Cut"
boolean23.addObjects([body24])
doc.recompute()

fillet2 = doc.addObject("PartDesign::Fillet", "Fillet001")
body27.addObject(fillet2)
fillet2.Base = (boolean23, edges_at(boolean23, [(-102, -108, 47.6), (-102, -56, 47.6)]))
fillet2.Radius = 8
doc.recompute()

boolean24 = doc.addObject("PartDesign::Boolean", "Boolean023")
body27.addObject(boolean24)
boolean24.Type = "Fuse"
boolean24.addObjects([body6])
doc.recompute()

boolean25 = doc.addObject("PartDesign::Boolean", "Boolean024")
body27.addObject(boolean25)
boolean25.Type = "Fuse"
boolean25.addObjects([body10])
doc.recompute()

boolean26 = doc.addObject("PartDesign::Boolean", "Boolean025")
body27.addObject(boolean26)
boolean26.Type = "Fuse"
boolean26.addObjects([body21])

doc.recompute()
